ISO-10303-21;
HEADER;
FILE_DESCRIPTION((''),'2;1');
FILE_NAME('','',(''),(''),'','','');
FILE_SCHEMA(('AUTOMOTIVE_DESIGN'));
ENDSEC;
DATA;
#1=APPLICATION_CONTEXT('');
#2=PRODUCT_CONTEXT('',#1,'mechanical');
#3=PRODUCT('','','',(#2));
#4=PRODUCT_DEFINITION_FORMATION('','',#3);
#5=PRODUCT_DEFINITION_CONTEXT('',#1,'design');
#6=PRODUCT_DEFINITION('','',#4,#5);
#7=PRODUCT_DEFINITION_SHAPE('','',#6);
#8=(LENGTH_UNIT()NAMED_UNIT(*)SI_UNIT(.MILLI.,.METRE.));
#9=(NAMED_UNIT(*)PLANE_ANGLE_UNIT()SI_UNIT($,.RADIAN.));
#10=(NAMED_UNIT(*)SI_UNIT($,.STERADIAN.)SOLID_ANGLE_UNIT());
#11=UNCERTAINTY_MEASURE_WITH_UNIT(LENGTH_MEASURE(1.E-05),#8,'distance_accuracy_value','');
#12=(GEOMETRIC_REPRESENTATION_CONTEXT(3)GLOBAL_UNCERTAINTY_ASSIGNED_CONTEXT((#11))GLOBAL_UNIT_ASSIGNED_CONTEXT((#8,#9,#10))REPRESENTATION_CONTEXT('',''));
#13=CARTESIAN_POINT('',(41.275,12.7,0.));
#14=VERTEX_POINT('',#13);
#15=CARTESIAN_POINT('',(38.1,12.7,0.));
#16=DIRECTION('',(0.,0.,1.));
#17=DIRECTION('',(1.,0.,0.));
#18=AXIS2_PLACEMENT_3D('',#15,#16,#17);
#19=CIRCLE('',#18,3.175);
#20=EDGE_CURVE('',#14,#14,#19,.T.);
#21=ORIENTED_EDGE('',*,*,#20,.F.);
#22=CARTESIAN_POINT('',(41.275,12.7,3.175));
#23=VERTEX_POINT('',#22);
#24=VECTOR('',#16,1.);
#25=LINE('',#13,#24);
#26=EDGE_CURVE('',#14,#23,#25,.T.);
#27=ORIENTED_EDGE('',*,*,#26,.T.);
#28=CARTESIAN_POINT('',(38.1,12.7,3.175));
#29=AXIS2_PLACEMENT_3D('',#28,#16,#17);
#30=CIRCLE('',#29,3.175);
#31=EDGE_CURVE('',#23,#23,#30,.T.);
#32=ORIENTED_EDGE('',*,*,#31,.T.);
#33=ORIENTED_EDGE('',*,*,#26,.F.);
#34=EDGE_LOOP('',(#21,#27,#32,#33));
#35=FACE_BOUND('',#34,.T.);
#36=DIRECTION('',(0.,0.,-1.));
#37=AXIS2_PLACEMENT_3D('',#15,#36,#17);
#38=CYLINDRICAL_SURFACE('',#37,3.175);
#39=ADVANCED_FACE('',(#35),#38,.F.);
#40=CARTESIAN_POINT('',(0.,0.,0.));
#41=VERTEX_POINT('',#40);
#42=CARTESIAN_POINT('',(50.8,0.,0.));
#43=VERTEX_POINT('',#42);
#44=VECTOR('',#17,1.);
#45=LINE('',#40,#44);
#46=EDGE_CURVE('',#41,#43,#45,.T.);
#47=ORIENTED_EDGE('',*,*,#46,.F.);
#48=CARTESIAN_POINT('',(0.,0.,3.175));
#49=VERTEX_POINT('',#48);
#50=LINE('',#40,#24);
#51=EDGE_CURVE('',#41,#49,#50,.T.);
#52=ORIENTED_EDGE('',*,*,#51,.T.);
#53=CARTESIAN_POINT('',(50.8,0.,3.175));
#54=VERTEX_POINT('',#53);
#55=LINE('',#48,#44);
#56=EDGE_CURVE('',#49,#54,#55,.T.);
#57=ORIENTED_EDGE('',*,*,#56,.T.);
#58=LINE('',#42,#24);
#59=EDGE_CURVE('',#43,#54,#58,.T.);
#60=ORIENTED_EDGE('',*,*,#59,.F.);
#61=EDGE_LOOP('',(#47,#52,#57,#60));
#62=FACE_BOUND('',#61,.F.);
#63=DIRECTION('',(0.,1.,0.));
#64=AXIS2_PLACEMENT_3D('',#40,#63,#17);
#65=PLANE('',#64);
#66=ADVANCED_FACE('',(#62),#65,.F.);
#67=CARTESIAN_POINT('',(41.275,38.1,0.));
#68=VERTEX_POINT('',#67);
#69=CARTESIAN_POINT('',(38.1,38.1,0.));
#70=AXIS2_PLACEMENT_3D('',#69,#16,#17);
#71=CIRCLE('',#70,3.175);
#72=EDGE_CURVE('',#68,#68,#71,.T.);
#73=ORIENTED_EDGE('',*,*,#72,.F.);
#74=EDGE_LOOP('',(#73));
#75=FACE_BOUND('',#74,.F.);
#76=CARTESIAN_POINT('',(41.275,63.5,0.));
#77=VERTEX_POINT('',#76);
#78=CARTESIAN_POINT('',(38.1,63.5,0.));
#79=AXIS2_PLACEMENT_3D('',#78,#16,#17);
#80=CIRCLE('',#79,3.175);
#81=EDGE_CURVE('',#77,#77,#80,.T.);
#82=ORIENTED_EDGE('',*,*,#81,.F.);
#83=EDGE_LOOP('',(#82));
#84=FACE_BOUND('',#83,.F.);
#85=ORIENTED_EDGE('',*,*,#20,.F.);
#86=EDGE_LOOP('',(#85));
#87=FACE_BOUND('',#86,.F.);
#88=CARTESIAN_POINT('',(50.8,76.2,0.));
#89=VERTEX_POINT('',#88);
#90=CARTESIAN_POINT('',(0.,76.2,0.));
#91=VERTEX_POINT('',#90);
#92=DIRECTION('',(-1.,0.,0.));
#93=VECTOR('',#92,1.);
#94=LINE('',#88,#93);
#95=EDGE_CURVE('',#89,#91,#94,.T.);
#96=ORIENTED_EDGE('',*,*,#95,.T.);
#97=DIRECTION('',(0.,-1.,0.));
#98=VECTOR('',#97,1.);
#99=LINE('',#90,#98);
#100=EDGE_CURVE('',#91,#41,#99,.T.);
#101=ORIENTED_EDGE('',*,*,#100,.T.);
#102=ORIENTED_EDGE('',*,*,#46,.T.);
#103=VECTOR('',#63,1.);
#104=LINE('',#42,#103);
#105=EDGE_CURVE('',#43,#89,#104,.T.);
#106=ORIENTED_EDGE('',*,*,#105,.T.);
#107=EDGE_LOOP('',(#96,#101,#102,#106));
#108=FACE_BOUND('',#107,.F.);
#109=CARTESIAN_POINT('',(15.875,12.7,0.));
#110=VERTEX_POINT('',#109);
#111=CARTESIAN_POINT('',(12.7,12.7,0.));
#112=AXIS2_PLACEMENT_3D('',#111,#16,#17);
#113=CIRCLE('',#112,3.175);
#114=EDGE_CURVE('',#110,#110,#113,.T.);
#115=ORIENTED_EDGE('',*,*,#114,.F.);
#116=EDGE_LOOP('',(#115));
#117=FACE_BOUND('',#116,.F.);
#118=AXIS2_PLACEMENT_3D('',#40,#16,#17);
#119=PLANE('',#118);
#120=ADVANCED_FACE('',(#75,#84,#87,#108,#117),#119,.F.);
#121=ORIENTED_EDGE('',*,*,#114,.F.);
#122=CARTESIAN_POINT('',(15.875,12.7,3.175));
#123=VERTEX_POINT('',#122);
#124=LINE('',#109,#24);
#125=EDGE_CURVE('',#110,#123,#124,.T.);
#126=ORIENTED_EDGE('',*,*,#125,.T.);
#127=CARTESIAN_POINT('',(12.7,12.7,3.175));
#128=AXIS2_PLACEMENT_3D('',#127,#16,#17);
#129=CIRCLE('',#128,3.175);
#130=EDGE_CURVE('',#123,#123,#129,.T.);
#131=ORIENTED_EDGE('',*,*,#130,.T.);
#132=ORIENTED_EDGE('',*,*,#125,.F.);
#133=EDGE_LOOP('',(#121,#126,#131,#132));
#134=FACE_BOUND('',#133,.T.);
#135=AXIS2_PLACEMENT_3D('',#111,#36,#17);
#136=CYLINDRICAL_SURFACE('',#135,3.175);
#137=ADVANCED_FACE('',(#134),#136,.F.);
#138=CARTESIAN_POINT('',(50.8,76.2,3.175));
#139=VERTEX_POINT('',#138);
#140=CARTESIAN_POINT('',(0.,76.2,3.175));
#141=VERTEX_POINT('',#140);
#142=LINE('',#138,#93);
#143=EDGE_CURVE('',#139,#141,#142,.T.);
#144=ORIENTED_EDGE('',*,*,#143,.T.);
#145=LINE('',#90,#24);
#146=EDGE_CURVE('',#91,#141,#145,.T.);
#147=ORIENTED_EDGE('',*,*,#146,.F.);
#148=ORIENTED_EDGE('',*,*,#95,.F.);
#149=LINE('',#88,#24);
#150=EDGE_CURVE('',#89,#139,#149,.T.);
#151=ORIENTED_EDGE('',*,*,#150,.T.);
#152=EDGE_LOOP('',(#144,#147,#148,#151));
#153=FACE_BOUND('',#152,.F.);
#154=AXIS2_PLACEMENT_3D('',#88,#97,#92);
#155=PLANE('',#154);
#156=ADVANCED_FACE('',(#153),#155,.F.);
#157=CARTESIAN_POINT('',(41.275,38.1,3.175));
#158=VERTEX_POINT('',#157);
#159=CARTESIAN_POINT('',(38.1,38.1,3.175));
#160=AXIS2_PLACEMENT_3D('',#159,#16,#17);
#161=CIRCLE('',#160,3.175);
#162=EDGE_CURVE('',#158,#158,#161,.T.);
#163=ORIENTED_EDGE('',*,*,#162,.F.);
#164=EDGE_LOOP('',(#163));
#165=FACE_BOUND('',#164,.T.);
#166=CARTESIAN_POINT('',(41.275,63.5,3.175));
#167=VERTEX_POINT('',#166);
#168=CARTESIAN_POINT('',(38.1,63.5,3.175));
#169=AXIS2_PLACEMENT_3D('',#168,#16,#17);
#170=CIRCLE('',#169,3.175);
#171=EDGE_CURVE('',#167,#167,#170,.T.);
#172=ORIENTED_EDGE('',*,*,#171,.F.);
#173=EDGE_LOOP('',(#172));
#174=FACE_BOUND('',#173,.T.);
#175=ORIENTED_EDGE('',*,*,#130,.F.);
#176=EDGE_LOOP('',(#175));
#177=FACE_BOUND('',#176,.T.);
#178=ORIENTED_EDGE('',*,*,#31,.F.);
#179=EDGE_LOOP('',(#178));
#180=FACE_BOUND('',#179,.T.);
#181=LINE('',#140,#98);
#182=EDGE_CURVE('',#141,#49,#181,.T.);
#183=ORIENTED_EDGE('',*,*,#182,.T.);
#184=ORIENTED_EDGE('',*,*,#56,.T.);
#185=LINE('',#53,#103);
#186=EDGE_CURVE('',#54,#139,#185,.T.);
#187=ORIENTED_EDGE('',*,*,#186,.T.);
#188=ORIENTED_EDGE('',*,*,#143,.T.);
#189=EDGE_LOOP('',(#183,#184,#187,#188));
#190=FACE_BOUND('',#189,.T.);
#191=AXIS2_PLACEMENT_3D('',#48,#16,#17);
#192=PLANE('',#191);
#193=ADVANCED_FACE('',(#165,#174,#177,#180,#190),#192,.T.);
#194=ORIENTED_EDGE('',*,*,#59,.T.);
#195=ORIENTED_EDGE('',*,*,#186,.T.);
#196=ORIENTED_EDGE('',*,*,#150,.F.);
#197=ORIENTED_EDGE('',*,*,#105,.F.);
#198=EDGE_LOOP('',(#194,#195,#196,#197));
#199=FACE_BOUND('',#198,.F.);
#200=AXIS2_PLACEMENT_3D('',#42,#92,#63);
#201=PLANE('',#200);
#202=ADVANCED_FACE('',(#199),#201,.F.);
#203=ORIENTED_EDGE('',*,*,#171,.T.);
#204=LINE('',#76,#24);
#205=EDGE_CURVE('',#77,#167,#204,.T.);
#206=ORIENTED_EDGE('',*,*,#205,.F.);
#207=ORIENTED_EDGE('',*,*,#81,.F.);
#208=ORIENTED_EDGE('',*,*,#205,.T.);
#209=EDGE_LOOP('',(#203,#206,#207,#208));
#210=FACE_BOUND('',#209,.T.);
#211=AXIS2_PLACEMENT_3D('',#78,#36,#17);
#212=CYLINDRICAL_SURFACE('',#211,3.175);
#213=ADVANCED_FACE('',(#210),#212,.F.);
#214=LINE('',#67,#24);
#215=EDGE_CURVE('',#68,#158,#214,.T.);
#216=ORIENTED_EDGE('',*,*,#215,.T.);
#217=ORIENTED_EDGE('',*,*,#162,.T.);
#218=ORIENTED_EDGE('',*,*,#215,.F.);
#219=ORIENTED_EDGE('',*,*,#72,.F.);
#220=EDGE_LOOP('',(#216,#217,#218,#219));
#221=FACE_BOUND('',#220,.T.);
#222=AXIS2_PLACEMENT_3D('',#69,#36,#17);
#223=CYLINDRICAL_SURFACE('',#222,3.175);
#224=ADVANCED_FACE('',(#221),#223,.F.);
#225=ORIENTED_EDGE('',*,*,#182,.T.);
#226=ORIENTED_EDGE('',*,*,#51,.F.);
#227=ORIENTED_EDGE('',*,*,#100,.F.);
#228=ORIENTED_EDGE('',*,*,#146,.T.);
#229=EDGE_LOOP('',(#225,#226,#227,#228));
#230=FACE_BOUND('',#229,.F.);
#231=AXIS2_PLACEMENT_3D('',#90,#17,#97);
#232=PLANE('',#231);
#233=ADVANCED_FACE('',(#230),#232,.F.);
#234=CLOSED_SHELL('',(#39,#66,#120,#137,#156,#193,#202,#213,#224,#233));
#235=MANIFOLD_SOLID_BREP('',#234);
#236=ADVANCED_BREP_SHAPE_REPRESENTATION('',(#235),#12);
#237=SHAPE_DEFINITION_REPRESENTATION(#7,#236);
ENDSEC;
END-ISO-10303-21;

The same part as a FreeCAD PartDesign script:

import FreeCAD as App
import Part
import Sketcher
Q = App.Units.Quantity

doc = App.newDocument("Part")
params = doc.addObject("Spreadsheet::Sheet", "Params")
for row, (alias, value) in enumerate([
    ("sketch1_diameter", "0.25 in"),
    ("sketch1_width", "2 in"),
    ("sketch1_height", "3 in"),
    ("pad1_length", "0.125 in"),
], start=1):
    params.set(f"A{row}", alias)
    params.set(f"B{row}", "=" + value)
    params.setAlias(f"B{row}", alias)

body = doc.addObject("PartDesign::Body", "Body")

# Sketch on XY plane
sketch1 = body.newObject("Sketcher::SketchObject", "Sketch")
sketch1.AttachmentSupport = (doc.getObject("XY_Plane"), [""])
sketch1.MapMode = "FlatFace"
sketch1.addGeometry([
    Part.LineSegment(App.Vector(0, 76.2, 0), App.Vector(0, 0, 0)),  # 0
    Part.LineSegment(App.Vector(0, 0, 0), App.Vector(50.8, 0, 0)),  # 1
    Part.LineSegment(App.Vector(50.8, 0, 0), App.Vector(50.8, 76.2, 0)),  # 2
    Part.LineSegment(App.Vector(50.8, 76.2, 0), App.Vector(0, 76.2, 0)),  # 3
    Part.Circle(App.Vector(12.7, 12.7, 0), App.Vector(0, 0, 1), 3.2),  # 4
    Part.Circle(App.Vector(38.1, 12.7, 0), App.Vector(0, 0, 1), 3.2),  # 5
    Part.Circle(App.Vector(38.1, 38.1, 0), App.Vector(0, 0, 1), 3.2),  # 6
    Part.Circle(App.Vector(38.1, 63.5, 0), App.Vector(0, 0, 1), 3.2),  # 7
], False)
sketch1.addConstraint([
    Sketcher.Constraint("Coincident", 0, 2, 1, 1),
    Sketcher.Constraint("Coincident", 1, 2, 2, 1),
    Sketcher.Constraint("Coincident", 2, 2, 3, 1),
    Sketcher.Constraint("Coincident", 3, 2, 0, 1),
    Sketcher.Constraint("Vertical", 0),
    Sketcher.Constraint("Horizontal", 1),
    Sketcher.Constraint("Vertical", 2),
    Sketcher.Constraint("Horizontal", 3),
    Sketcher.Constraint("Coincident", 0, 2, -1, 1),
    Sketcher.Constraint("Equal", 4, 5),
    Sketcher.Constraint("Equal", 5, 6),
    Sketcher.Constraint("Equal", 6, 7),
    Sketcher.Constraint("Horizontal", 4, 3, 5, 3),
    Sketcher.Constraint("Vertical", 5, 3, 6, 3),
    Sketcher.Constraint("Vertical", 6, 3, 7, 3),
    Sketcher.Constraint("Diameter", 4, Q("0.25 in")),
    Sketcher.Constraint("DistanceX", 1, 1, 1, 2, Q("2 in")),
    Sketcher.Constraint("DistanceY", 0, 2, 0, 1, Q("3 in")),
    Sketcher.Constraint("DistanceX", 4, 3, 5, 3, Q("1 in")),
    Sketcher.Constraint("DistanceY", 5, 3, 6, 3, Q("1 in")),
    Sketcher.Constraint("DistanceY", 6, 3, 7, 3, Q("1 in")),
    Sketcher.Constraint("DistanceX", -1, 1, 4, 3, Q("0.5 in")),
    Sketcher.Constraint("DistanceY", -1, 1, 4, 3, Q("0.5 in")),
])
sketch1.setExpression("Constraints[15]", "Params.sketch1_diameter")
sketch1.setExpression("Constraints[16]", "Params.sketch1_width")
sketch1.setExpression("Constraints[17]", "Params.sketch1_height")
pad1 = body.newObject("PartDesign::Pad", "Pad")
pad1.Profile = sketch1
pad1.setExpression("Length", "Params.pad1_length")

doc.recompute()
